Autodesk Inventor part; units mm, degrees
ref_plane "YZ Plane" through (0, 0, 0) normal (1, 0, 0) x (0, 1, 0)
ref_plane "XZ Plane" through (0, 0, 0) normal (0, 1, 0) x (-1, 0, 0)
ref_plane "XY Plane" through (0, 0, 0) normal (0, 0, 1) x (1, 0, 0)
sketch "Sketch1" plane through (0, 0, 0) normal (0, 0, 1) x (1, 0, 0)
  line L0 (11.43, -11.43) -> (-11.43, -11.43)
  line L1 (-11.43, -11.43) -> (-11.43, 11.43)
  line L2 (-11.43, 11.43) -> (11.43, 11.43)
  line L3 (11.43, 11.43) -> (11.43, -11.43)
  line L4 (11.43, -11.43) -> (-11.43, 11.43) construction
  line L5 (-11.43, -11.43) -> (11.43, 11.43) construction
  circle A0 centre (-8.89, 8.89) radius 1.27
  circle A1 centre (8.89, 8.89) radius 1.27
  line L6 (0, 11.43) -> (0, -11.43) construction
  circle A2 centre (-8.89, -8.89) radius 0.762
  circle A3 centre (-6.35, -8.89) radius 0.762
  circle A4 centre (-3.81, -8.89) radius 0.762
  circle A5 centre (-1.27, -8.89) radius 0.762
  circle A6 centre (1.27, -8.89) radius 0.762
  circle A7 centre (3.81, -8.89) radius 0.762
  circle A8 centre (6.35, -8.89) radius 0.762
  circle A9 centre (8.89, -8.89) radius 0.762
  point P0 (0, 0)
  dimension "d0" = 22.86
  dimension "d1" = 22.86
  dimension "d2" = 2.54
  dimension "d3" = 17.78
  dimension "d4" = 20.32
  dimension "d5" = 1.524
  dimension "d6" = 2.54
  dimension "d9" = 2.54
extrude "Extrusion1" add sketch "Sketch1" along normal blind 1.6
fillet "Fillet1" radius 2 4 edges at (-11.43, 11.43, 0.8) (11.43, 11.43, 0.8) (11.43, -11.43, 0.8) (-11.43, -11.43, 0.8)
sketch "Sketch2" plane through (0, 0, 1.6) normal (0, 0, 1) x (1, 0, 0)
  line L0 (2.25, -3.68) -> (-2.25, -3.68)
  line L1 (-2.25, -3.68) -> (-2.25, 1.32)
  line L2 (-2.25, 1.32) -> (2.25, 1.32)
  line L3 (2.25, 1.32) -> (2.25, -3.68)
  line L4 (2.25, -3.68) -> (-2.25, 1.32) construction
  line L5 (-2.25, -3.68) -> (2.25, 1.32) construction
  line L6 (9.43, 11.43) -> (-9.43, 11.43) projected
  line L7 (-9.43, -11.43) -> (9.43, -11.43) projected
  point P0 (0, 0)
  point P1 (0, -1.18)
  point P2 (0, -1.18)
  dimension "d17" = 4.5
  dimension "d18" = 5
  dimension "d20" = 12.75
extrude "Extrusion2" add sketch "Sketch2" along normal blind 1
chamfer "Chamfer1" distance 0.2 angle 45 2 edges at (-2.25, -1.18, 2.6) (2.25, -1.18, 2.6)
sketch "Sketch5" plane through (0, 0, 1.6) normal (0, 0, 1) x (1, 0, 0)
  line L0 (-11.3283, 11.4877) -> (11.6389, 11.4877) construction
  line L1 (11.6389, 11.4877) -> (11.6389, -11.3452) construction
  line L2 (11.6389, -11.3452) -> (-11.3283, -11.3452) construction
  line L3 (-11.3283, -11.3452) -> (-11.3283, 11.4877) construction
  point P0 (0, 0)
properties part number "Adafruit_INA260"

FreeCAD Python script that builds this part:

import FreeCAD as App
import Part
import Sketcher

V = App.Vector
Q = App.Units.Quantity


def edges_at(feature, points):
    """Names of the edges that pass closest to the given points."""
    edges = feature.Shape.Edges
    near = lambda p: min(range(len(edges)), key=lambda i: edges[i].distToShape(Part.Vertex(*p))[0])
    return sorted({f"Edge{near(p) + 1}" for p in points})

doc = App.newDocument("Part")
body = doc.addObject("PartDesign::Body", "Body")

# Sketch on XY plane
sketch1 = body.newObject("Sketcher::SketchObject", "Sketch")
sketch1.AttachmentSupport = (doc.getObject("XY_Plane"), [""])
sketch1.MapMode = "FlatFace"
sketch1.addGeometry(Part.LineSegment(V(-11.4, -11.4, 0), V(11.4, -11.4, 0)), False)
sketch1.addGeometry(Part.LineSegment(V(11.4, -11.4, 0), V(11.4, 11.4, 0)), False)
sketch1.addGeometry(Part.LineSegment(V(11.4, 11.4, 0), V(-11.4, 11.4, 0)), False)
sketch1.addGeometry(Part.LineSegment(V(-11.4, 11.4, 0), V(-11.4, -11.4, 0)), False)
sketch1.addGeometry(Part.Circle(V(-8.9, -8.9, 0), V(0, 0, 1), 0.8), False)
sketch1.addGeometry(Part.Circle(V(-6.3, -8.9, 0), V(0, 0, 1), 0.8), False)
sketch1.addGeometry(Part.Circle(V(-3.8, -8.9, 0), V(0, 0, 1), 0.8), False)
sketch1.addGeometry(Part.Circle(V(-1.3, -8.9, 0), V(0, 0, 1), 0.8), False)
sketch1.addGeometry(Part.Circle(V(1.3, -8.9, 0), V(0, 0, 1), 0.8), False)
sketch1.addGeometry(Part.Circle(V(3.8, -8.9, 0), V(0, 0, 1), 0.8), False)
sketch1.addGeometry(Part.Circle(V(6.3, -8.9, 0), V(0, 0, 1), 0.8), False)
sketch1.addGeometry(Part.Circle(V(8.9, -8.9, 0), V(0, 0, 1), 0.8), False)
sketch1.addGeometry(Part.Circle(V(-8.9, 8.9, 0), V(0, 0, 1), 1.3), False)
sketch1.addGeometry(Part.Circle(V(8.9, 8.9, 0), V(0, 0, 1), 1.3), False)
sketch1.addConstraint(Sketcher.Constraint("Coincident", 0, 2, 1, 1))
sketch1.addConstraint(Sketcher.Constraint("Coincident", 1, 2, 2, 1))
sketch1.addConstraint(Sketcher.Constraint("Coincident", 2, 2, 3, 1))
sketch1.addConstraint(Sketcher.Constraint("Coincident", 3, 2, 0, 1))
sketch1.addConstraint(Sketcher.Constraint("Horizontal", 0))
sketch1.addConstraint(Sketcher.Constraint("Vertical", 1))
sketch1.addConstraint(Sketcher.Constraint("Horizontal", 2))
sketch1.addConstraint(Sketcher.Constraint("Vertical", 3))
sketch1.addConstraint(Sketcher.Constraint("Equal", 4, 5))
sketch1.addConstraint(Sketcher.Constraint("Equal", 5, 6))
sketch1.addConstraint(Sketcher.Constraint("Equal", 6, 7))
sketch1.addConstraint(Sketcher.Constraint("Equal", 7, 8))
sketch1.addConstraint(Sketcher.Constraint("Equal", 8, 9))
sketch1.addConstraint(Sketcher.Constraint("Equal", 9, 10))
sketch1.addConstraint(Sketcher.Constraint("Equal", 10, 11))
sketch1.addConstraint(Sketcher.Constraint("Equal", 12, 13))
sketch1.addConstraint(Sketcher.Constraint("Symmetric", 11, 3, 12, 3, -1, 1))
sketch1.addConstraint(Sketcher.Constraint("Symmetric", 4, 3, 13, 3, -1, 1))
sketch1.addConstraint(Sketcher.Constraint("Symmetric", 0, 2, 2, 2, -1, 1))
sketch1.addConstraint(Sketcher.Constraint("Symmetric", 7, 3, 8, 3, -2))
sketch1.addConstraint(Sketcher.Constraint("Symmetric", 6, 3, 9, 3, -2))
sketch1.addConstraint(Sketcher.Constraint("Symmetric", 5, 3, 10, 3, -2))
sketch1.addConstraint(Sketcher.Constraint("Symmetric", 4, 3, 11, 3, -2))
sketch1.addConstraint(Sketcher.Constraint("Horizontal", 4, 3, 5, 3))
sketch1.addConstraint(Sketcher.Constraint("Horizontal", 5, 3, 6, 3))
sketch1.addConstraint(Sketcher.Constraint("Horizontal", 6, 3, 7, 3))
sketch1.addConstraint(Sketcher.Constraint("Equal", 2, 1))
sketch1.addConstraint(Sketcher.Constraint("Diameter", 12, Q("2.54 mm")))
sketch1.addConstraint(Sketcher.Constraint("Diameter", 4, Q("1.524 mm")))
sketch1.addConstraint(Sketcher.Constraint("DistanceX", 0, 1, 0, 2, Q("22.86 mm")))
sketch1.addConstraint(Sketcher.Constraint("DistanceX", 4, 3, 5, 3, Q("2.54 mm")))
sketch1.addConstraint(Sketcher.Constraint("DistanceX", 5, 3, 6, 3, Q("2.54 mm")))
sketch1.addConstraint(Sketcher.Constraint("DistanceX", 6, 3, 7, 3, Q("2.54 mm")))
sketch1.addConstraint(Sketcher.Constraint("DistanceX", 7, 3, 8, 3, Q("2.54 mm")))
sketch1.addConstraint(Sketcher.Constraint("DistanceY", 4, 3, 12, 3, Q("17.78 mm")))
pad1 = body.newObject("PartDesign::Pad", "Pad")
pad1.Profile = sketch1
pad1.Length = 1.6
doc.recompute()

fillet = body.newObject("PartDesign::Fillet", "Fillet")
fillet.Base = (pad1, edges_at(pad1, [
    (-11.43, 11.43, 0.8),
    (11.43, 11.43, 0.8),
    (11.43, -11.43, 0.8),
    (-11.43, -11.43, 0.8),
]))
fillet.Radius = 2

# Sketch on XY plane
sketch2 = body.newObject("Sketcher::SketchObject", "Sketch001")
sketch2.AttachmentSupport = (doc.getObject("XY_Plane"), [""])
sketch2.MapMode = "FlatFace"
sketch2.AttachmentOffset = App.Placement(V(0, 0, 1.6), App.Rotation())
sketch2.addGeometry(Part.LineSegment(V(-2.2, -3.7, 0), V(2.2, -3.7, 0)), False)
sketch2.addGeometry(Part.LineSegment(V(2.2, -3.7, 0), V(2.2, 1.3, 0)), False)
sketch2.addGeometry(Part.LineSegment(V(2.2, 1.3, 0), V(-2.2, 1.3, 0)), False)
sketch2.addGeometry(Part.LineSegment(V(-2.2, 1.3, 0), V(-2.2, -3.7, 0)), False)
sketch2.addConstraint(Sketcher.Constraint("Coincident", 0, 2, 1, 1))
sketch2.addConstraint(Sketcher.Constraint("Coincident", 1, 2, 2, 1))
sketch2.addConstraint(Sketcher.Constraint("Coincident", 2, 2, 3, 1))
sketch2.addConstraint(Sketcher.Constraint("Coincident", 3, 2, 0, 1))
sketch2.addConstraint(Sketcher.Constraint("Horizontal", 0))
sketch2.addConstraint(Sketcher.Constraint("Vertical", 1))
sketch2.addConstraint(Sketcher.Constraint("Horizontal", 2))
sketch2.addConstraint(Sketcher.Constraint("Vertical", 3))
sketch2.addConstraint(Sketcher.Constraint("DistanceY", 1, 1, 1, 2, Q("5 mm")))
sketch2.addConstraint(Sketcher.Constraint("DistanceX", 0, 1, 0, 2, Q("4.5 mm")))
sketch2.addConstraint(Sketcher.Constraint("DistanceX", -1, 1, 0, 2, Q("2.25 mm")))
sketch2.addConstraint(Sketcher.Constraint("DistanceY", 0, 2, -1, 1, Q("3.68 mm")))
pad2 = body.newObject("PartDesign::Pad", "Pad001")
pad2.Profile = sketch2
pad2.Length = 1
doc.recompute()

chamfer = body.newObject("PartDesign::Chamfer", "Chamfer")
chamfer.Base = (pad2, edges_at(pad2, [(-2.25, -1.18, 2.6), (2.25, -1.18, 2.6)]))
chamfer.Size = 0.2

doc.recompute()
